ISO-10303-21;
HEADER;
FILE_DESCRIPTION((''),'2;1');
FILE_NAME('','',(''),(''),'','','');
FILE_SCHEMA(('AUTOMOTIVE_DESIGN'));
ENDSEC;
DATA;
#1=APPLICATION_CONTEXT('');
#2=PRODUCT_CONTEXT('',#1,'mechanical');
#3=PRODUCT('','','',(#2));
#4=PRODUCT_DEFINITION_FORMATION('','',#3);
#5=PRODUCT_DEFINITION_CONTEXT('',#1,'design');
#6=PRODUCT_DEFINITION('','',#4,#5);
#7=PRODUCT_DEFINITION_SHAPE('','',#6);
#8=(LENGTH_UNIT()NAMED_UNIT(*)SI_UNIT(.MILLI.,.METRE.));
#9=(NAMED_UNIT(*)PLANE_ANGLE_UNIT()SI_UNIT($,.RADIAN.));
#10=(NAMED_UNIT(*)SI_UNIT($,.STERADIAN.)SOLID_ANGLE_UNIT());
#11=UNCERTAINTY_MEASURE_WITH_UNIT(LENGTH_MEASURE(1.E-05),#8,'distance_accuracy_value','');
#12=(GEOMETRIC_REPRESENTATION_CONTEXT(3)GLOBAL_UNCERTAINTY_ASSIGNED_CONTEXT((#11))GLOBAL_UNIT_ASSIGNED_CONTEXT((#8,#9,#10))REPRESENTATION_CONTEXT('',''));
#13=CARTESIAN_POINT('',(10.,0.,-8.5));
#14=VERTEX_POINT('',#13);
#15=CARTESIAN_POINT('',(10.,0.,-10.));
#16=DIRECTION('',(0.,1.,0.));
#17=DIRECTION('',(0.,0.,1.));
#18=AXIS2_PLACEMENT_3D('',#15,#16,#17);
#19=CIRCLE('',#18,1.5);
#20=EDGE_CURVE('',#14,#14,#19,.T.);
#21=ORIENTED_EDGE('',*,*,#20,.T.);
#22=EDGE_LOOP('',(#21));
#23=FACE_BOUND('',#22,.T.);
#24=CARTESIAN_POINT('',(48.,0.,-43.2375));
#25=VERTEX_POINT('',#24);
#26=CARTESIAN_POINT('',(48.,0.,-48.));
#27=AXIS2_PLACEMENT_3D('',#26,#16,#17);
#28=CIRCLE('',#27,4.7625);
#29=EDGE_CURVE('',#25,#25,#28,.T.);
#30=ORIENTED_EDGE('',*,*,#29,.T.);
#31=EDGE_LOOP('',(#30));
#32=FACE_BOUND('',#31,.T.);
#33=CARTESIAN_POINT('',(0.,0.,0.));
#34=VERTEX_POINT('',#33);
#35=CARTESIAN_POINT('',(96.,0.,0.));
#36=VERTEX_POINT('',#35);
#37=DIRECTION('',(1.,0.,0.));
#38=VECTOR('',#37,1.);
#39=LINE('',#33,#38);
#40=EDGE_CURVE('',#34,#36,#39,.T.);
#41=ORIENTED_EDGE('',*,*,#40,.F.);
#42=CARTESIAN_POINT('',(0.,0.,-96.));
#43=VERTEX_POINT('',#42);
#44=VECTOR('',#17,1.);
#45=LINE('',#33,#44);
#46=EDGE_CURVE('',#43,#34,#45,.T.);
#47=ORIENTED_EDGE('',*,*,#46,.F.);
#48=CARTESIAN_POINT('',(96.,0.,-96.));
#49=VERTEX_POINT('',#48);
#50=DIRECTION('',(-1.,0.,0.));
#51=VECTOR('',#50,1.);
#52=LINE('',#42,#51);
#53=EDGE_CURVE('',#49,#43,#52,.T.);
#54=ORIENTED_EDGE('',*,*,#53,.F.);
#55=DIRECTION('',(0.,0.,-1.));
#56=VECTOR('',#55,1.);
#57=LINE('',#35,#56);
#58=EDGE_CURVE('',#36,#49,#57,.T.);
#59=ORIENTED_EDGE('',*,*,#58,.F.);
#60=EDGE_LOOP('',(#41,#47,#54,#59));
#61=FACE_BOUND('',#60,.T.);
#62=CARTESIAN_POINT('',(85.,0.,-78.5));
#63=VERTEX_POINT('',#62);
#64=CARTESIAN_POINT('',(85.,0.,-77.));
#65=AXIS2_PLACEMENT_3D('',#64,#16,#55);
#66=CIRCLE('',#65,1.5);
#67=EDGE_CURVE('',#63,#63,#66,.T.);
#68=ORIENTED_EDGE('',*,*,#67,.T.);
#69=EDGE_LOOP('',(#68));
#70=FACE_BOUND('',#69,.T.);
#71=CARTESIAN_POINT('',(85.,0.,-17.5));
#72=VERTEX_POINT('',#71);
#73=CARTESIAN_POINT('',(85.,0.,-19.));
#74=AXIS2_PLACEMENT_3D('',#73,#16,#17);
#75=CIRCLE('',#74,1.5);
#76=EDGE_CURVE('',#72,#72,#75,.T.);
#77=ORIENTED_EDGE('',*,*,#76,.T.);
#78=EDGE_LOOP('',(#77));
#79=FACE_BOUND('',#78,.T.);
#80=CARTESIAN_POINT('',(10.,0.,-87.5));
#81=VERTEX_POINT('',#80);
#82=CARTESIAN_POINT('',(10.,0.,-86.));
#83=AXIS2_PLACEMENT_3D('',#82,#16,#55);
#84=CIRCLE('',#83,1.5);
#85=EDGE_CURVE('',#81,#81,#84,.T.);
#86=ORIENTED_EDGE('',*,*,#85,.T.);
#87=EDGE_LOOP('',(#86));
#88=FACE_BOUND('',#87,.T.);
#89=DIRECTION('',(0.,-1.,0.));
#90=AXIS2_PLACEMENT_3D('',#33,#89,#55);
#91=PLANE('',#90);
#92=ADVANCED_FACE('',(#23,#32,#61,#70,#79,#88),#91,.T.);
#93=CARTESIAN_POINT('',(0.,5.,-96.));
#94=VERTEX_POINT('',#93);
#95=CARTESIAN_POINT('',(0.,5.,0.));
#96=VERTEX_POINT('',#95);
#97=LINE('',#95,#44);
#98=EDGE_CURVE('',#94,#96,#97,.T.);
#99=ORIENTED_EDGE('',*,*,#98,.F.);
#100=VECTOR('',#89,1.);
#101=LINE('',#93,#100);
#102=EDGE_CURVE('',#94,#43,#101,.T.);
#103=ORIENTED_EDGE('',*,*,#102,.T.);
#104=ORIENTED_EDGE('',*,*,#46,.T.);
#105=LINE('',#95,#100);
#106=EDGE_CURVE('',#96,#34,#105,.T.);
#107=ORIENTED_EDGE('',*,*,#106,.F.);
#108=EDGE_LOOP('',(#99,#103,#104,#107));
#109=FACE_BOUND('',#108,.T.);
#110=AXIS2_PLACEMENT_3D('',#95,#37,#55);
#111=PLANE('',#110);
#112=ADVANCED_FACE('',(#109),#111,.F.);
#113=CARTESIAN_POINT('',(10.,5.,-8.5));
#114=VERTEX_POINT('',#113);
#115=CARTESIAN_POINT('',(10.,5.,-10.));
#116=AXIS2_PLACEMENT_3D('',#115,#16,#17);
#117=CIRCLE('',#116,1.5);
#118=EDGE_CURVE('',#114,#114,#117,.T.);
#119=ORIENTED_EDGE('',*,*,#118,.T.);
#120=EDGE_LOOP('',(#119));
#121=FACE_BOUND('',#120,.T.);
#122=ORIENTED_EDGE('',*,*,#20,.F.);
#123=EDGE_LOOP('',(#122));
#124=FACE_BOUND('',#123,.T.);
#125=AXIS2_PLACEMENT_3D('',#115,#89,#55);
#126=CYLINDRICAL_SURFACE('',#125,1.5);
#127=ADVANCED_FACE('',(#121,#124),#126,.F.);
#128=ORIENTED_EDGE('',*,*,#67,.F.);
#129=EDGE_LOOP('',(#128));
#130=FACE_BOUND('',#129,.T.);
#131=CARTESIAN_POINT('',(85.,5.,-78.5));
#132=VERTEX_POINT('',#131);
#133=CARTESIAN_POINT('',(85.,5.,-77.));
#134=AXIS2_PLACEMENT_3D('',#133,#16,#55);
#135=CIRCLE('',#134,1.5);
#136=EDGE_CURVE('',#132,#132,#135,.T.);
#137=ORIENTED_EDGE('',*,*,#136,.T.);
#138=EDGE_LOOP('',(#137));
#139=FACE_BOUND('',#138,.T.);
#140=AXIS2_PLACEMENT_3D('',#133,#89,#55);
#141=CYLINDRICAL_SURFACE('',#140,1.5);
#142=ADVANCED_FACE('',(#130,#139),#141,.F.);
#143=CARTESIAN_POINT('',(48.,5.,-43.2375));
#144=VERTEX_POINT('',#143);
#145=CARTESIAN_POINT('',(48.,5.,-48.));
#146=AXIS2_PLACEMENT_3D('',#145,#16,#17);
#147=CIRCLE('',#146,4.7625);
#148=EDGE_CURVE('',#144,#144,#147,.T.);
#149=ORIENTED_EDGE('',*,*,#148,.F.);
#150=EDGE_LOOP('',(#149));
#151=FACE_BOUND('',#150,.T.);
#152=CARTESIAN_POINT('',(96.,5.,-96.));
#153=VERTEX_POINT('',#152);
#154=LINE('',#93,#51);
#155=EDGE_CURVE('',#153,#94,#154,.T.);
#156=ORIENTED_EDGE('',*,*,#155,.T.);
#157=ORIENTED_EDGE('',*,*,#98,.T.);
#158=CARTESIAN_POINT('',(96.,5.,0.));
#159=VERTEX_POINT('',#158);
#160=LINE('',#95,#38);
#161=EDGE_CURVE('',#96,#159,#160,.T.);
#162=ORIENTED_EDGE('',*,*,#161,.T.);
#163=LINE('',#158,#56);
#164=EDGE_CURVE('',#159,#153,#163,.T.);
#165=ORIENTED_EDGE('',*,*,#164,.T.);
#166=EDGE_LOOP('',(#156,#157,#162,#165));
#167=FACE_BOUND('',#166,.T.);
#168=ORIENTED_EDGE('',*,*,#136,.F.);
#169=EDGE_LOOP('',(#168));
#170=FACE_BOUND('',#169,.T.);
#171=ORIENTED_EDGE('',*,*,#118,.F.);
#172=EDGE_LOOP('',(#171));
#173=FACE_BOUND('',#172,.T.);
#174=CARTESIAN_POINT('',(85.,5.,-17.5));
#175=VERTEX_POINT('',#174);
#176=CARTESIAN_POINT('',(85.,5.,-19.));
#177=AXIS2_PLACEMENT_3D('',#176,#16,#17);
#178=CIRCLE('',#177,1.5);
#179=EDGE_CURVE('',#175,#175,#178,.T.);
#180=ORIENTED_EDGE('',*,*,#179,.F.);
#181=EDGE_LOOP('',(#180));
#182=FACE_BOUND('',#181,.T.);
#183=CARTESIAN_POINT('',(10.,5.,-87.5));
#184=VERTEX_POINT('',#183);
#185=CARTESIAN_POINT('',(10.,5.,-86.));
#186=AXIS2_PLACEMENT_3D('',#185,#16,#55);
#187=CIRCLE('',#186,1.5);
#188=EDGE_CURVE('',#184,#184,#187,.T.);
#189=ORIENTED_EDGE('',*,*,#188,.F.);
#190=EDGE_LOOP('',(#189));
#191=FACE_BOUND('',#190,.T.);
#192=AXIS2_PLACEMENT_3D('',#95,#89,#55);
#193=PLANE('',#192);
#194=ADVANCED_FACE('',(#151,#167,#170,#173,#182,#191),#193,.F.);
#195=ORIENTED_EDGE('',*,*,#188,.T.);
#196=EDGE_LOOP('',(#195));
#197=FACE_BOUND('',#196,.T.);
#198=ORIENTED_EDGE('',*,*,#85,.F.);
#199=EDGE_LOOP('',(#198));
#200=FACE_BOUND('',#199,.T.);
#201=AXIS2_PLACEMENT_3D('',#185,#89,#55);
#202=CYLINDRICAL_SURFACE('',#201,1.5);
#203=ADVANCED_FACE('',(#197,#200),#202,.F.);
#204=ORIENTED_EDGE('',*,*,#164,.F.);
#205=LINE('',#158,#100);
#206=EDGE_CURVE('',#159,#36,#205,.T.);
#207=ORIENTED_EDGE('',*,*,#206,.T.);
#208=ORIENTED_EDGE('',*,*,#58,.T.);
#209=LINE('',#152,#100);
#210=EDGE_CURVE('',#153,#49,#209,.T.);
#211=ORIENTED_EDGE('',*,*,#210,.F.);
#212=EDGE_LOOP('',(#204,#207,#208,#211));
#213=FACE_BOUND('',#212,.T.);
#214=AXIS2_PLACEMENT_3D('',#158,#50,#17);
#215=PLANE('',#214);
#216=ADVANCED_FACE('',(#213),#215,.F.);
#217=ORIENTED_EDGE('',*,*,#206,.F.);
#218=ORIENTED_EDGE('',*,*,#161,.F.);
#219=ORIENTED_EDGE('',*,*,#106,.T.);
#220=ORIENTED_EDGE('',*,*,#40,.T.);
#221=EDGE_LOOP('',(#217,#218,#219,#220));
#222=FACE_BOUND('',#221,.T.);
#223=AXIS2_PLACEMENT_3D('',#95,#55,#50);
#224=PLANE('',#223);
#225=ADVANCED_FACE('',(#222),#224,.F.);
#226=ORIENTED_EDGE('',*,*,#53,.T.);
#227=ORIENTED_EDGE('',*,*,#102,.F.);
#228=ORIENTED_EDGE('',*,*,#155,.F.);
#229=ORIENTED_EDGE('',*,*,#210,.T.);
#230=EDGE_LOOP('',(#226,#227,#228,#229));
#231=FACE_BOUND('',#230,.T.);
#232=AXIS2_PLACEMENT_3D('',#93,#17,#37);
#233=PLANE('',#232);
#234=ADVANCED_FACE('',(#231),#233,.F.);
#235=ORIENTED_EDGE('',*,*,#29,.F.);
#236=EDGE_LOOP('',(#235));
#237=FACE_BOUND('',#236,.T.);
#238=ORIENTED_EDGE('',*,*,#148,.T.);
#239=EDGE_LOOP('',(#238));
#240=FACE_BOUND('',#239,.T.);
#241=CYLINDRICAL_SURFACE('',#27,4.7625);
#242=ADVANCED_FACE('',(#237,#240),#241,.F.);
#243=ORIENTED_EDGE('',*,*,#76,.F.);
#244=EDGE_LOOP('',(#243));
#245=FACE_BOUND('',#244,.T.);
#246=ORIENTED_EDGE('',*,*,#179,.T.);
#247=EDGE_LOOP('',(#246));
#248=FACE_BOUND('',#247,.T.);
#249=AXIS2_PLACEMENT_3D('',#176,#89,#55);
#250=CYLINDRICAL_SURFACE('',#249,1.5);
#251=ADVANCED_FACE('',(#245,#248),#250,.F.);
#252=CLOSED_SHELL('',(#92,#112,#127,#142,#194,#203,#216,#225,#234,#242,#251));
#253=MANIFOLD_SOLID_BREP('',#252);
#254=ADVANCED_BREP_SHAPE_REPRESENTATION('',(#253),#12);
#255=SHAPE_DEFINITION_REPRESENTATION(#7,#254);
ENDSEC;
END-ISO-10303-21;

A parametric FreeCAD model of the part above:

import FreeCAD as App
import Part
import Sketcher
Q = App.Units.Quantity

doc = App.newDocument("Part")
params = doc.addObject("Spreadsheet::Sheet", "Params")
for row, (alias, value) in enumerate([
    ("sketch1_diameter", "3 mm"),
    ("sketch1_width", "96 mm"),
    ("pad1_length", "5 mm"),
], start=1):
    params.set(f"A{row}", alias)
    params.set(f"B{row}", "=" + value)
    params.setAlias(f"B{row}", alias)

body = doc.addObject("PartDesign::Body", "Body")

# Sketch on XZ plane
sketch1 = body.newObject("Sketcher::SketchObject", "Sketch")
sketch1.AttachmentSupport = (doc.getObject("XZ_Plane"), [""])
sketch1.MapMode = "FlatFace"
sketch1.addGeometry([
    Part.LineSegment(App.Vector(0, -96, 0), App.Vector(0, 0, 0)),  # 0
    Part.LineSegment(App.Vector(0, 0, 0), App.Vector(96, 0, 0)),  # 1
    Part.LineSegment(App.Vector(96, 0, 0), App.Vector(96, -96, 0)),  # 2
    Part.LineSegment(App.Vector(96, -96, 0), App.Vector(0, -96, 0)),  # 3
    Part.Circle(App.Vector(10, -10, 0), App.Vector(0, 0, 1), 1.5),  # 4
    Part.Circle(App.Vector(85, -19, 0), App.Vector(0, 0, 1), 1.5),  # 5
    Part.Circle(App.Vector(10, -86, 0), App.Vector(0, 0, 1), 1.5),  # 6
    Part.Circle(App.Vector(85, -77, 0), App.Vector(0, 0, 1), 1.5),  # 7
], False)
sketch1.addConstraint([
    Sketcher.Constraint("Coincident", 0, 2, 1, 1),
    Sketcher.Constraint("Coincident", 1, 2, 2, 1),
    Sketcher.Constraint("Coincident", 2, 2, 3, 1),
    Sketcher.Constraint("Coincident", 3, 2, 0, 1),
    Sketcher.Constraint("Vertical", 0),
    Sketcher.Constraint("Horizontal", 1),
    Sketcher.Constraint("Vertical", 2),
    Sketcher.Constraint("Horizontal", 3),
    Sketcher.Constraint("Coincident", 0, 2, -1, 1),
    Sketcher.Constraint("Equal", 4, 5),
    Sketcher.Constraint("Equal", 5, 6),
    Sketcher.Constraint("Equal", 6, 7),
    Sketcher.Constraint("Vertical", 4, 3, 6, 3),
    Sketcher.Constraint("Vertical", 5, 3, 7, 3),
    Sketcher.Constraint("Equal", 3, 0),
    Sketcher.Constraint("Diameter", 4, Q("3 mm")),
    Sketcher.Constraint("DistanceX", 1, 1, 1, 2, Q("96 mm")),
    Sketcher.Constraint("DistanceX", -1, 1, 4, 3, Q("10 mm")),
    Sketcher.Constraint("DistanceY", 4, 3, -1, 1, Q("10 mm")),
    Sketcher.Constraint("DistanceX", -1, 1, 5, 3, Q("85 mm")),
    Sketcher.Constraint("DistanceY", 5, 3, -1, 1, Q("19 mm")),
    Sketcher.Constraint("DistanceY", 6, 3, -1, 1, Q("86 mm")),
    Sketcher.Constraint("DistanceY", 7, 3, -1, 1, Q("77 mm")),
])
sketch1.setExpression("Constraints[15]", "Params.sketch1_diameter")
sketch1.setExpression("Constraints[16]", "Params.sketch1_width")
pad1 = body.newObject("PartDesign::Pad", "Pad")
pad1.Profile = sketch1
pad1.setExpression("Length", "Params.pad1_length")
pad1.Reversed = True

# Sketch on XZ plane
sketch2 = body.newObject("Sketcher::SketchObject", "Sketch001")
sketch2.AttachmentSupport = (doc.getObject("XZ_Plane"), [""])
sketch2.MapMode = "FlatFace"
sketch2.AttachmentOffset = App.Placement(App.Vector(0, 0, -5), App.Rotation())
sketch2.addGeometry(Part.Circle(App.Vector(48, -48, 0), App.Vector(0, 0, 1), 4.8), False)
sketch2.addConstraint([
    Sketcher.Constraint("Diameter", 0, Q("9.525 mm")),
    Sketcher.Constraint("DistanceX", -1, 1, 0, 3, Q("48 mm")),
    Sketcher.Constraint("DistanceY", 0, 3, -1, 1, Q("48 mm")),
])
pocket1 = body.newObject("PartDesign::Pocket", "Pocket")
pocket1.Profile = sketch2
pocket1.Type = "ThroughAll"
pocket1.Reversed = True

doc.recompute()
